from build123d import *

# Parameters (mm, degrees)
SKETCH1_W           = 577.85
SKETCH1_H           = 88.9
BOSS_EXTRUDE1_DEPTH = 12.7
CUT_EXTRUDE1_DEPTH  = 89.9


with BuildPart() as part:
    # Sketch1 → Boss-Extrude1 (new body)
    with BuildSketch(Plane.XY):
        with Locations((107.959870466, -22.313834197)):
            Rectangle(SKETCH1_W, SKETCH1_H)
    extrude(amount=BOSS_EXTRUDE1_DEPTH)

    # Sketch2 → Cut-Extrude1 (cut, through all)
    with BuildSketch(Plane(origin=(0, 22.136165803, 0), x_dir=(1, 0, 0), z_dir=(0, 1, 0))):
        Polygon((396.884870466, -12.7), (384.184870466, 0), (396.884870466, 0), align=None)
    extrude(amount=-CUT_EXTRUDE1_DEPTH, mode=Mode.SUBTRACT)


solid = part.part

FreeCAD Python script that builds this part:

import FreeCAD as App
import Part
import Sketcher
from FreeCAD import Vector
Q = App.Units.Quantity


def add_polygon(sketch, points):
    """Adds a closed chain of lines whose ends are joined by coincident constraints."""
    first, n = sketch.GeometryCount, len(points)
    for a, b in zip(points, points[1:] + points[:1]):
        sketch.addGeometry(Part.LineSegment(App.Vector(*a, 0), App.Vector(*b, 0)), False)
    for i in range(n):
        sketch.addConstraint(Sketcher.Constraint("Coincident", first + i, 2, first + (i + 1) % n, 1))

doc = App.newDocument("Part")
params = doc.addObject("Spreadsheet::Sheet", "Params")
for row, (alias, value) in enumerate([
    ("sketch1_height", "3.5 in"),
    ("sketch1_width", "22.75 in"),
    ("pad1_length", "0.5 in"),
    ("sketch2_width", "0.5 in"),
], start=1):
    params.set(f"A{row}", alias)
    params.set(f"B{row}", "=" + value)
    params.setAlias(f"B{row}", alias)

body = doc.addObject("PartDesign::Body", "Body")

# Sketch on XY plane
sketch1 = body.newObject("Sketcher::SketchObject", "Sketch")
sketch1.AttachmentSupport = (doc.getObject("XY_Plane"), [""])
sketch1.MapMode = "FlatFace"
add_polygon(sketch1, [(-180.96513, 22.136166), (-180.96513, -66.763834), (396.88487, -66.763834), (396.88487, 22.136166)])  # lines 0-3
sketch1.addConstraint([
    Sketcher.Constraint("Vertical", 0),
    Sketcher.Constraint("Horizontal", 1),
    Sketcher.Constraint("Vertical", 2),
    Sketcher.Constraint("Horizontal", 3),
    Sketcher.Constraint("DistanceY", 0, 2, 0, 1, Q("3.5 in")),
    Sketcher.Constraint("DistanceX", 1, 1, 1, 2, Q("22.75 in")),
    Sketcher.Constraint("DistanceX", 0, 2, -1, 1, 180.96513),
    Sketcher.Constraint("DistanceY", 0, 2, -1, 1, 66.763834),
])
sketch1.setExpression("Constraints[8]", "Params.sketch1_height")
sketch1.setExpression("Constraints[9]", "Params.sketch1_width")
pad1 = body.newObject("PartDesign::Pad", "Pad")
pad1.Profile = sketch1
pad1.setExpression("Length", "Params.pad1_length")

# Sketch on XZ plane
sketch2 = body.newObject("Sketcher::SketchObject", "Sketch001")
sketch2.AttachmentSupport = (doc.getObject("XZ_Plane"), [""])
sketch2.MapMode = "FlatFace"
sketch2.AttachmentOffset = App.Placement(Vector(0, 0, -22.136166), App.Rotation())
add_polygon(sketch2, [(384.18487, 0), (396.88487, 12.7), (396.88487, 0)])  # lines 0-2
sketch2.addConstraint([
    Sketcher.Constraint("Vertical", 1),
    Sketcher.Constraint("Horizontal", 2),
    Sketcher.Constraint("PointOnObject", 1, 2, -1),
    Sketcher.Constraint("Equal", 2, 1),
    Sketcher.Constraint("DistanceX", 2, 2, 2, 1, Q("0.5 in")),
    Sketcher.Constraint("DistanceX", -1, 1, 0, 2, 396.88487),
])
sketch2.setExpression("Constraints[7]", "Params.sketch2_width")
pocket1 = body.newObject("PartDesign::Pocket", "Pocket")
pocket1.Profile = sketch2
pocket1.Type = "ThroughAll"
pocket1.Reversed = True

doc.recompute()
